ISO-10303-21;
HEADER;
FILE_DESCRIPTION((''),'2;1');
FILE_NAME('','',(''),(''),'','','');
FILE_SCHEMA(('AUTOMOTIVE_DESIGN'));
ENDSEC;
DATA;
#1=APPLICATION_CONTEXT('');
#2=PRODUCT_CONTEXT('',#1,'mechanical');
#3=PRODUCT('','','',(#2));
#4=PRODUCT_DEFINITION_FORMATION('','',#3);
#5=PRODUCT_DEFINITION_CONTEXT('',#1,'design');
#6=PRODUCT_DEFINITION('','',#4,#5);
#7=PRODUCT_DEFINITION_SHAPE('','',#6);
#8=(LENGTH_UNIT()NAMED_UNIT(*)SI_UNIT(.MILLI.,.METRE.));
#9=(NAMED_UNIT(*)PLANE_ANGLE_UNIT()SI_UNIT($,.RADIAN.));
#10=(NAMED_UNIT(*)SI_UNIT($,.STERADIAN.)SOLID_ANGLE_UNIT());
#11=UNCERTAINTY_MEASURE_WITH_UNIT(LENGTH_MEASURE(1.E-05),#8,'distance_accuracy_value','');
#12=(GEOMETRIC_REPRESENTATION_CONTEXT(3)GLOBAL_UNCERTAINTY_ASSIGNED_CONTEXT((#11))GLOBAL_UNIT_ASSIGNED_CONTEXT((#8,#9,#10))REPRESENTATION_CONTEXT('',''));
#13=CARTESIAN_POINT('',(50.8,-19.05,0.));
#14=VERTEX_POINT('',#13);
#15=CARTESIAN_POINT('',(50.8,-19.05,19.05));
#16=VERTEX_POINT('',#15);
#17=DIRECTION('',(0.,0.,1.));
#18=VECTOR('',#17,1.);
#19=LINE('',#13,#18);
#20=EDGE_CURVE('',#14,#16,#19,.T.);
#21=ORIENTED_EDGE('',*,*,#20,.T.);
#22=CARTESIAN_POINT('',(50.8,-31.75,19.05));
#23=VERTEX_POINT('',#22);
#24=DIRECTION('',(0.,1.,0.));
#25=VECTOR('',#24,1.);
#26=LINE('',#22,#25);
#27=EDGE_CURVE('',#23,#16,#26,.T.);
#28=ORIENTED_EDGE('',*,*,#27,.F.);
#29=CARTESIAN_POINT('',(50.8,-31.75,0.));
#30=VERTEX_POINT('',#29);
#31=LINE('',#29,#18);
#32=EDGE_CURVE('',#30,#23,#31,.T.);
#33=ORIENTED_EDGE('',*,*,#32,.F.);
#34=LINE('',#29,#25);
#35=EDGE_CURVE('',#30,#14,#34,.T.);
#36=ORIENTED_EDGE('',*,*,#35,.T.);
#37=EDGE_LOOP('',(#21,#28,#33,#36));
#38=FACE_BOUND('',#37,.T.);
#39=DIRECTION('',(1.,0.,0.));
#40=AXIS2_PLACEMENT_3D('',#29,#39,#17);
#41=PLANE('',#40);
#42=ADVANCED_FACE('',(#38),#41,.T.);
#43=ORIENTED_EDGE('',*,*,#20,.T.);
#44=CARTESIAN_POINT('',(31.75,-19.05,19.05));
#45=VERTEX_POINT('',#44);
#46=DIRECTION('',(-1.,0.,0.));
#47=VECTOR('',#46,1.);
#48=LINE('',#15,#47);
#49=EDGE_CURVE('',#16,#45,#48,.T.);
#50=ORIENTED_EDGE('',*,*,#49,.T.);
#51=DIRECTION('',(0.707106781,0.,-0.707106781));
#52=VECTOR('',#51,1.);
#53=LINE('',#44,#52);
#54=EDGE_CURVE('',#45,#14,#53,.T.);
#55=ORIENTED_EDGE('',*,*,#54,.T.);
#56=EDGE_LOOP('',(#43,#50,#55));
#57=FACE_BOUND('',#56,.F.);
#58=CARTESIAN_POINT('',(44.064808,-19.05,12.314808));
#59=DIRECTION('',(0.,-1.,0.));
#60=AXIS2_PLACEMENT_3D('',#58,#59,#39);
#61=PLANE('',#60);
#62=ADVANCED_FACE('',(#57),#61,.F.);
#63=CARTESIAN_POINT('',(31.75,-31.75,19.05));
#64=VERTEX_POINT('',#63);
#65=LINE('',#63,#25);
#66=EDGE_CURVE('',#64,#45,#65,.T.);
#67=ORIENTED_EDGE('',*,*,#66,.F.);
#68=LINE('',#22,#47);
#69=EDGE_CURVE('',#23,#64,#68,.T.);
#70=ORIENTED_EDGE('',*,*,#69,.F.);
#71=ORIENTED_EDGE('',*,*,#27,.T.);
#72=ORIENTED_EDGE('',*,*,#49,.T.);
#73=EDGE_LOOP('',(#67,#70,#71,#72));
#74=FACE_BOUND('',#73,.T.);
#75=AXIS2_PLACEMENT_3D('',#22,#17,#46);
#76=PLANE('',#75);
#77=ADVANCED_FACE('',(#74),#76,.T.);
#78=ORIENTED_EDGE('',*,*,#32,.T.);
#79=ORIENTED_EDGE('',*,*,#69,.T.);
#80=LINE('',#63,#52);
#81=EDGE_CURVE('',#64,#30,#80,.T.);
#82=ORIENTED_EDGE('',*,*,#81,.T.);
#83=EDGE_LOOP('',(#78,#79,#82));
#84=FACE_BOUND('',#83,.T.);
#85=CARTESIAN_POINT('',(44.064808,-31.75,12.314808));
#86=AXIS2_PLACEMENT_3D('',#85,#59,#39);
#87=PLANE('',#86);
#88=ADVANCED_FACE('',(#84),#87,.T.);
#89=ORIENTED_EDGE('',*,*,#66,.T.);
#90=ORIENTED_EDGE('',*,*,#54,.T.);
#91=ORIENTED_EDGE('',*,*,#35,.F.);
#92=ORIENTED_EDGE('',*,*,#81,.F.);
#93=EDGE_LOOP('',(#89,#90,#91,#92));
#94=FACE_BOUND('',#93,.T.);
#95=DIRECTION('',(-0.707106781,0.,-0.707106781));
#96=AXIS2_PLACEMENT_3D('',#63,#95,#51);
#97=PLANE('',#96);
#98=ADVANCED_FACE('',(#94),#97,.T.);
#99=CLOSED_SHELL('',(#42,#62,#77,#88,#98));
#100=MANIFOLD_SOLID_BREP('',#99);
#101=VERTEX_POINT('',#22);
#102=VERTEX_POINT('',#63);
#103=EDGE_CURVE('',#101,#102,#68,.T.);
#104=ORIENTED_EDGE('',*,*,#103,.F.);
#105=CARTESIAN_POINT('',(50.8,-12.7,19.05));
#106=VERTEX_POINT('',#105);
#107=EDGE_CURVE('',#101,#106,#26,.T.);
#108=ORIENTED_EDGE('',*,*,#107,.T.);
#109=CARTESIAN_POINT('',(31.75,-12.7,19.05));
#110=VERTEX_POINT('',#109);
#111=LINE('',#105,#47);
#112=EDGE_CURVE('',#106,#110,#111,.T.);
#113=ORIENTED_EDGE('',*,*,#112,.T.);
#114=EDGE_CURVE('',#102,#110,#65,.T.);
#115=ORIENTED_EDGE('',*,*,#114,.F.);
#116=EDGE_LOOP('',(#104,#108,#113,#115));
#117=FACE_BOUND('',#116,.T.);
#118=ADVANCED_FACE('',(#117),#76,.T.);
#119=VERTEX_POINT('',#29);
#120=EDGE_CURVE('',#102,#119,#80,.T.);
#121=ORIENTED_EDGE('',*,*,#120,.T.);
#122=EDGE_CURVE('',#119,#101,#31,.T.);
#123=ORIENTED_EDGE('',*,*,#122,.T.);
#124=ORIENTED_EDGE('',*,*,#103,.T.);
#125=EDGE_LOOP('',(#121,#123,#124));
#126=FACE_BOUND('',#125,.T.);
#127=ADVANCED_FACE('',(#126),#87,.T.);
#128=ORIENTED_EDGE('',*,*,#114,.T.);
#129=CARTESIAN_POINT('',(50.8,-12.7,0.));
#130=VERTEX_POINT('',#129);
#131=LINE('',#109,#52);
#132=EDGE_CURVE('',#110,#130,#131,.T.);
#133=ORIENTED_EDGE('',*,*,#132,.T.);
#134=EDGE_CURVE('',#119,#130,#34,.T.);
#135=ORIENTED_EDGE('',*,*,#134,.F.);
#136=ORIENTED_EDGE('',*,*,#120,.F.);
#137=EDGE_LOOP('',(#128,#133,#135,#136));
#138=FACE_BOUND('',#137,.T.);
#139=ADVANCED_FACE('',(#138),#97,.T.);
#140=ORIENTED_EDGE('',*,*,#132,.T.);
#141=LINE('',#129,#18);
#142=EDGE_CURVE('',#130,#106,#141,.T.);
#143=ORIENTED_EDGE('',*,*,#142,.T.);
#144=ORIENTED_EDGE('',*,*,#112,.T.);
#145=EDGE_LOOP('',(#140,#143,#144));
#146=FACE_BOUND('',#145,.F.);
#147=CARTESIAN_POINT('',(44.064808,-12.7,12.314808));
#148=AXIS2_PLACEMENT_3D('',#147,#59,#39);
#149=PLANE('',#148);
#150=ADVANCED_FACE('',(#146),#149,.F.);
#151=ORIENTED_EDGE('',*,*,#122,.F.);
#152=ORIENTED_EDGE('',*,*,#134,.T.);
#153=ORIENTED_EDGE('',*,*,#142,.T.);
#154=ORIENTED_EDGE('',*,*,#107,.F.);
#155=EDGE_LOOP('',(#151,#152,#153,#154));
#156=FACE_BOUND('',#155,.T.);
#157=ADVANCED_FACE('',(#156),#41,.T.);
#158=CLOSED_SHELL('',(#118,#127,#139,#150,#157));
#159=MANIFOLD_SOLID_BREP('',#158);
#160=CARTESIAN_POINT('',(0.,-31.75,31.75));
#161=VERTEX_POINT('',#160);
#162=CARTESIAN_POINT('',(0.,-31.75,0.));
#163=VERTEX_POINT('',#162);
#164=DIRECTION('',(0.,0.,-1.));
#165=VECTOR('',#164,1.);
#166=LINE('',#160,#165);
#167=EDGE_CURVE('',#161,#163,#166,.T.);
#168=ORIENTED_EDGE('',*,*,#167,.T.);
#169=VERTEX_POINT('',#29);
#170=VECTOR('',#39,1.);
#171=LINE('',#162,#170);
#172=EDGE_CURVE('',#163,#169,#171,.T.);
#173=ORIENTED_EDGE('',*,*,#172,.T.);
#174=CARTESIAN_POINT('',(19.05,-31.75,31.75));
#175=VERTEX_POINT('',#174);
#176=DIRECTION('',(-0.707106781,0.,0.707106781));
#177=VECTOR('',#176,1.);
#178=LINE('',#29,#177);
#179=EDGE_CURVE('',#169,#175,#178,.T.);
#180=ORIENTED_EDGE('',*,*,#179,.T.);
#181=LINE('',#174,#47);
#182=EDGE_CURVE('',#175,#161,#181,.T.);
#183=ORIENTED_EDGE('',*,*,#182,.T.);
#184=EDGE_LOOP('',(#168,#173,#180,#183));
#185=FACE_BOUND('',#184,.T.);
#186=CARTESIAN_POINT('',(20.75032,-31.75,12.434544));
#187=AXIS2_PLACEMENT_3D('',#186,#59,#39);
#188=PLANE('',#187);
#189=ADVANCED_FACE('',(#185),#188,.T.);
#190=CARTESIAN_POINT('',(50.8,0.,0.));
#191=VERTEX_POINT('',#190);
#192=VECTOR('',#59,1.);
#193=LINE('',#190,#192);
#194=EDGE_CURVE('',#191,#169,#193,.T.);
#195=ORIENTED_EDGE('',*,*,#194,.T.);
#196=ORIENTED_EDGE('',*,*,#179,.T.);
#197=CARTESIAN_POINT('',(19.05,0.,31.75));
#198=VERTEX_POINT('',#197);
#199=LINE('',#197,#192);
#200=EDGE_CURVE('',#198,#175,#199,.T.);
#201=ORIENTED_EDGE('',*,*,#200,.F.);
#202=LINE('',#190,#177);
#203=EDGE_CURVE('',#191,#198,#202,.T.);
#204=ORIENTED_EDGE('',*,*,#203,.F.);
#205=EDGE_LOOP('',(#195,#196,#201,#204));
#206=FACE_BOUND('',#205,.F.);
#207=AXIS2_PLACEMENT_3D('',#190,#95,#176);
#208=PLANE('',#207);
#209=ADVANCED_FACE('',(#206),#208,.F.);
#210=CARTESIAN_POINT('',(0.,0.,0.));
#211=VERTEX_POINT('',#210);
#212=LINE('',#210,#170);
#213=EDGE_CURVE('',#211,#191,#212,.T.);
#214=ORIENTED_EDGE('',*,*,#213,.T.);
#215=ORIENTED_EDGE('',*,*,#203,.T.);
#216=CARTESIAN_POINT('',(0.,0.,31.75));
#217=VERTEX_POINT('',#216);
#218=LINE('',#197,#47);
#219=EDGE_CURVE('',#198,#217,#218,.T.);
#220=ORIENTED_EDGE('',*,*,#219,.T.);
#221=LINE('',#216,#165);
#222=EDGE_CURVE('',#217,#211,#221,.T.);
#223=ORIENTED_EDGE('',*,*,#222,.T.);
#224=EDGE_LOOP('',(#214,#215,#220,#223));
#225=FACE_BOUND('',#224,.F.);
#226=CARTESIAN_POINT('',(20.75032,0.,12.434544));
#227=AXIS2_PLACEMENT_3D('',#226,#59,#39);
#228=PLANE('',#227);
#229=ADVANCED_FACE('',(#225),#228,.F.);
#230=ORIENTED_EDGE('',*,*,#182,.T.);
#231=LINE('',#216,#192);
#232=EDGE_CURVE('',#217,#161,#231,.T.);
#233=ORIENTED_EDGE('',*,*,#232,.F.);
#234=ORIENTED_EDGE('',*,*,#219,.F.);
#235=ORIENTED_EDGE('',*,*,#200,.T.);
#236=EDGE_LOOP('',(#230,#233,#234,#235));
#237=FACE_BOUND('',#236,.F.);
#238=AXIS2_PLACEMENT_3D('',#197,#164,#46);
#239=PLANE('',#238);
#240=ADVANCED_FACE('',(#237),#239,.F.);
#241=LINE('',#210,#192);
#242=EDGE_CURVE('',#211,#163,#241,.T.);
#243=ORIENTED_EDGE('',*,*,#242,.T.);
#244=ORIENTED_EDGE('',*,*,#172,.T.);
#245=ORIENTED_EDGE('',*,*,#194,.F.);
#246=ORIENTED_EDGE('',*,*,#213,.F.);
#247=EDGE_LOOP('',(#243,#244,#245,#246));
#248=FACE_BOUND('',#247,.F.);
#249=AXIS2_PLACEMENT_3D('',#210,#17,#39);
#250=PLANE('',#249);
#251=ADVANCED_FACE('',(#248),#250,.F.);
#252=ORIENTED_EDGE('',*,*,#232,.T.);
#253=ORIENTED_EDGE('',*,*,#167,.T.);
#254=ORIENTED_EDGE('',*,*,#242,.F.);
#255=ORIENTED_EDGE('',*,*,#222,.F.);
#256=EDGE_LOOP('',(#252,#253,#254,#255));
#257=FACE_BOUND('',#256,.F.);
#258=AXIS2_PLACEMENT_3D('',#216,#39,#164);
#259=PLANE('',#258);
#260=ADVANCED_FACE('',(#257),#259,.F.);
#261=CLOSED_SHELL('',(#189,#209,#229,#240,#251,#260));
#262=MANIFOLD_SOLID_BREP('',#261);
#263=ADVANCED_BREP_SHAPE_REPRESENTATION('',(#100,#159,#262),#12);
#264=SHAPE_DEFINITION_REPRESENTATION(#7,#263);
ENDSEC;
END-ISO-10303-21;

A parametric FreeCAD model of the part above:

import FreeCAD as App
import Part
import Sketcher
Q = App.Units.Quantity


def add_polygon(sketch, points):
    """Adds a closed chain of lines whose ends are joined by coincident constraints."""
    first, n = sketch.GeometryCount, len(points)
    for a, b in zip(points, points[1:] + points[:1]):
        sketch.addGeometry(Part.LineSegment(App.Vector(*a, 0), App.Vector(*b, 0)), False)
    for i in range(n):
        sketch.addConstraint(Sketcher.Constraint("Coincident", first + i, 2, first + (i + 1) % n, 1))

doc = App.newDocument("Part")
body = doc.addObject("PartDesign::Body", "Body")

sketch1 = body.newObject("Sketcher::SketchObject", "Sketch")
sketch1.AttachmentSupport = (doc.getObject("XZ_Plane"), [""])
sketch1.MapMode = "FlatFace"
add_polygon(sketch1, [(19.05, 31.75), (0, 31.75), (0, 0), (50.8, 0)])
sketch1.addConstraint([
    Sketcher.Constraint("Horizontal", 0),
    Sketcher.Constraint("Vertical", 1),
    Sketcher.Constraint("Horizontal", 2),
    Sketcher.Constraint("Coincident", 1, 2, -1, 1),
    Sketcher.Constraint("DistanceX", 2, 1, 2, 2, Q("2 in")),
    Sketcher.Constraint("Angle", 3, Q("135 deg")),
    Sketcher.Constraint("DistanceX", 0, 2, 0, 1, Q("0.75 in")),
])
pad1 = body.newObject("PartDesign::Pad", "Pad")
pad1.Profile = sketch1
pad1.Length = Q("1.25 in")
body2 = doc.addObject("PartDesign::Body", "Body001")

sketch2 = body2.newObject("Sketcher::SketchObject", "Sketch001")
sketch2.AttachmentSupport = (doc.getObject("XZ_Plane001"), [""])
sketch2.MapMode = "FlatFace"
sketch2.AttachmentOffset = App.Placement(App.Vector(0, 0, 1.25 * 25.4), App.Rotation())
add_polygon(sketch2, [(50.8, 19.05), (31.75, 19.05), (50.8, 0)])
sketch2.addConstraint([
    Sketcher.Constraint("Horizontal", 0),
    Sketcher.Constraint("Vertical", 2),
    Sketcher.Constraint("PointOnObject", 1, 2, -1),
    Sketcher.Constraint("Equal", 0, 2),
    Sketcher.Constraint("DistanceX", -1, 1, 1, 2, Q("2 in")),
    Sketcher.Constraint("DistanceX", 0, 2, 0, 1, Q("0.75 in")),
])
pad2 = body2.newObject("PartDesign::Pad", "Pad001")
pad2.Profile = sketch2
pad2.Length = Q("0.75 in")
pad2.Reversed = True
body3 = doc.addObject("PartDesign::Body", "Body002")

sketch3 = body3.newObject("Sketcher::SketchObject", "Sketch002")
sketch3.AttachmentSupport = (doc.getObject("XZ_Plane002"), [""])
sketch3.MapMode = "FlatFace"
sketch3.AttachmentOffset = App.Placement(App.Vector(0, 0, 1.25 * 25.4), App.Rotation())
add_polygon(sketch3, [(50.8, 19.05), (31.75, 19.05), (50.8, 0)])
sketch3.addConstraint([
    Sketcher.Constraint("Horizontal", 0),
    Sketcher.Constraint("Vertical", 2),
    Sketcher.Constraint("PointOnObject", 1, 2, -1),
    Sketcher.Constraint("Equal", 0, 2),
    Sketcher.Constraint("DistanceX", -1, 1, 1, 2, Q("2 in")),
    Sketcher.Constraint("DistanceX", 0, 2, 0, 1, Q("0.75 in")),
])
pad3 = body3.newObject("PartDesign::Pad", "Pad002")
pad3.Profile = sketch3
pad3.Length = Q("0.5 in")
pad3.Reversed = True

doc.recompute()
